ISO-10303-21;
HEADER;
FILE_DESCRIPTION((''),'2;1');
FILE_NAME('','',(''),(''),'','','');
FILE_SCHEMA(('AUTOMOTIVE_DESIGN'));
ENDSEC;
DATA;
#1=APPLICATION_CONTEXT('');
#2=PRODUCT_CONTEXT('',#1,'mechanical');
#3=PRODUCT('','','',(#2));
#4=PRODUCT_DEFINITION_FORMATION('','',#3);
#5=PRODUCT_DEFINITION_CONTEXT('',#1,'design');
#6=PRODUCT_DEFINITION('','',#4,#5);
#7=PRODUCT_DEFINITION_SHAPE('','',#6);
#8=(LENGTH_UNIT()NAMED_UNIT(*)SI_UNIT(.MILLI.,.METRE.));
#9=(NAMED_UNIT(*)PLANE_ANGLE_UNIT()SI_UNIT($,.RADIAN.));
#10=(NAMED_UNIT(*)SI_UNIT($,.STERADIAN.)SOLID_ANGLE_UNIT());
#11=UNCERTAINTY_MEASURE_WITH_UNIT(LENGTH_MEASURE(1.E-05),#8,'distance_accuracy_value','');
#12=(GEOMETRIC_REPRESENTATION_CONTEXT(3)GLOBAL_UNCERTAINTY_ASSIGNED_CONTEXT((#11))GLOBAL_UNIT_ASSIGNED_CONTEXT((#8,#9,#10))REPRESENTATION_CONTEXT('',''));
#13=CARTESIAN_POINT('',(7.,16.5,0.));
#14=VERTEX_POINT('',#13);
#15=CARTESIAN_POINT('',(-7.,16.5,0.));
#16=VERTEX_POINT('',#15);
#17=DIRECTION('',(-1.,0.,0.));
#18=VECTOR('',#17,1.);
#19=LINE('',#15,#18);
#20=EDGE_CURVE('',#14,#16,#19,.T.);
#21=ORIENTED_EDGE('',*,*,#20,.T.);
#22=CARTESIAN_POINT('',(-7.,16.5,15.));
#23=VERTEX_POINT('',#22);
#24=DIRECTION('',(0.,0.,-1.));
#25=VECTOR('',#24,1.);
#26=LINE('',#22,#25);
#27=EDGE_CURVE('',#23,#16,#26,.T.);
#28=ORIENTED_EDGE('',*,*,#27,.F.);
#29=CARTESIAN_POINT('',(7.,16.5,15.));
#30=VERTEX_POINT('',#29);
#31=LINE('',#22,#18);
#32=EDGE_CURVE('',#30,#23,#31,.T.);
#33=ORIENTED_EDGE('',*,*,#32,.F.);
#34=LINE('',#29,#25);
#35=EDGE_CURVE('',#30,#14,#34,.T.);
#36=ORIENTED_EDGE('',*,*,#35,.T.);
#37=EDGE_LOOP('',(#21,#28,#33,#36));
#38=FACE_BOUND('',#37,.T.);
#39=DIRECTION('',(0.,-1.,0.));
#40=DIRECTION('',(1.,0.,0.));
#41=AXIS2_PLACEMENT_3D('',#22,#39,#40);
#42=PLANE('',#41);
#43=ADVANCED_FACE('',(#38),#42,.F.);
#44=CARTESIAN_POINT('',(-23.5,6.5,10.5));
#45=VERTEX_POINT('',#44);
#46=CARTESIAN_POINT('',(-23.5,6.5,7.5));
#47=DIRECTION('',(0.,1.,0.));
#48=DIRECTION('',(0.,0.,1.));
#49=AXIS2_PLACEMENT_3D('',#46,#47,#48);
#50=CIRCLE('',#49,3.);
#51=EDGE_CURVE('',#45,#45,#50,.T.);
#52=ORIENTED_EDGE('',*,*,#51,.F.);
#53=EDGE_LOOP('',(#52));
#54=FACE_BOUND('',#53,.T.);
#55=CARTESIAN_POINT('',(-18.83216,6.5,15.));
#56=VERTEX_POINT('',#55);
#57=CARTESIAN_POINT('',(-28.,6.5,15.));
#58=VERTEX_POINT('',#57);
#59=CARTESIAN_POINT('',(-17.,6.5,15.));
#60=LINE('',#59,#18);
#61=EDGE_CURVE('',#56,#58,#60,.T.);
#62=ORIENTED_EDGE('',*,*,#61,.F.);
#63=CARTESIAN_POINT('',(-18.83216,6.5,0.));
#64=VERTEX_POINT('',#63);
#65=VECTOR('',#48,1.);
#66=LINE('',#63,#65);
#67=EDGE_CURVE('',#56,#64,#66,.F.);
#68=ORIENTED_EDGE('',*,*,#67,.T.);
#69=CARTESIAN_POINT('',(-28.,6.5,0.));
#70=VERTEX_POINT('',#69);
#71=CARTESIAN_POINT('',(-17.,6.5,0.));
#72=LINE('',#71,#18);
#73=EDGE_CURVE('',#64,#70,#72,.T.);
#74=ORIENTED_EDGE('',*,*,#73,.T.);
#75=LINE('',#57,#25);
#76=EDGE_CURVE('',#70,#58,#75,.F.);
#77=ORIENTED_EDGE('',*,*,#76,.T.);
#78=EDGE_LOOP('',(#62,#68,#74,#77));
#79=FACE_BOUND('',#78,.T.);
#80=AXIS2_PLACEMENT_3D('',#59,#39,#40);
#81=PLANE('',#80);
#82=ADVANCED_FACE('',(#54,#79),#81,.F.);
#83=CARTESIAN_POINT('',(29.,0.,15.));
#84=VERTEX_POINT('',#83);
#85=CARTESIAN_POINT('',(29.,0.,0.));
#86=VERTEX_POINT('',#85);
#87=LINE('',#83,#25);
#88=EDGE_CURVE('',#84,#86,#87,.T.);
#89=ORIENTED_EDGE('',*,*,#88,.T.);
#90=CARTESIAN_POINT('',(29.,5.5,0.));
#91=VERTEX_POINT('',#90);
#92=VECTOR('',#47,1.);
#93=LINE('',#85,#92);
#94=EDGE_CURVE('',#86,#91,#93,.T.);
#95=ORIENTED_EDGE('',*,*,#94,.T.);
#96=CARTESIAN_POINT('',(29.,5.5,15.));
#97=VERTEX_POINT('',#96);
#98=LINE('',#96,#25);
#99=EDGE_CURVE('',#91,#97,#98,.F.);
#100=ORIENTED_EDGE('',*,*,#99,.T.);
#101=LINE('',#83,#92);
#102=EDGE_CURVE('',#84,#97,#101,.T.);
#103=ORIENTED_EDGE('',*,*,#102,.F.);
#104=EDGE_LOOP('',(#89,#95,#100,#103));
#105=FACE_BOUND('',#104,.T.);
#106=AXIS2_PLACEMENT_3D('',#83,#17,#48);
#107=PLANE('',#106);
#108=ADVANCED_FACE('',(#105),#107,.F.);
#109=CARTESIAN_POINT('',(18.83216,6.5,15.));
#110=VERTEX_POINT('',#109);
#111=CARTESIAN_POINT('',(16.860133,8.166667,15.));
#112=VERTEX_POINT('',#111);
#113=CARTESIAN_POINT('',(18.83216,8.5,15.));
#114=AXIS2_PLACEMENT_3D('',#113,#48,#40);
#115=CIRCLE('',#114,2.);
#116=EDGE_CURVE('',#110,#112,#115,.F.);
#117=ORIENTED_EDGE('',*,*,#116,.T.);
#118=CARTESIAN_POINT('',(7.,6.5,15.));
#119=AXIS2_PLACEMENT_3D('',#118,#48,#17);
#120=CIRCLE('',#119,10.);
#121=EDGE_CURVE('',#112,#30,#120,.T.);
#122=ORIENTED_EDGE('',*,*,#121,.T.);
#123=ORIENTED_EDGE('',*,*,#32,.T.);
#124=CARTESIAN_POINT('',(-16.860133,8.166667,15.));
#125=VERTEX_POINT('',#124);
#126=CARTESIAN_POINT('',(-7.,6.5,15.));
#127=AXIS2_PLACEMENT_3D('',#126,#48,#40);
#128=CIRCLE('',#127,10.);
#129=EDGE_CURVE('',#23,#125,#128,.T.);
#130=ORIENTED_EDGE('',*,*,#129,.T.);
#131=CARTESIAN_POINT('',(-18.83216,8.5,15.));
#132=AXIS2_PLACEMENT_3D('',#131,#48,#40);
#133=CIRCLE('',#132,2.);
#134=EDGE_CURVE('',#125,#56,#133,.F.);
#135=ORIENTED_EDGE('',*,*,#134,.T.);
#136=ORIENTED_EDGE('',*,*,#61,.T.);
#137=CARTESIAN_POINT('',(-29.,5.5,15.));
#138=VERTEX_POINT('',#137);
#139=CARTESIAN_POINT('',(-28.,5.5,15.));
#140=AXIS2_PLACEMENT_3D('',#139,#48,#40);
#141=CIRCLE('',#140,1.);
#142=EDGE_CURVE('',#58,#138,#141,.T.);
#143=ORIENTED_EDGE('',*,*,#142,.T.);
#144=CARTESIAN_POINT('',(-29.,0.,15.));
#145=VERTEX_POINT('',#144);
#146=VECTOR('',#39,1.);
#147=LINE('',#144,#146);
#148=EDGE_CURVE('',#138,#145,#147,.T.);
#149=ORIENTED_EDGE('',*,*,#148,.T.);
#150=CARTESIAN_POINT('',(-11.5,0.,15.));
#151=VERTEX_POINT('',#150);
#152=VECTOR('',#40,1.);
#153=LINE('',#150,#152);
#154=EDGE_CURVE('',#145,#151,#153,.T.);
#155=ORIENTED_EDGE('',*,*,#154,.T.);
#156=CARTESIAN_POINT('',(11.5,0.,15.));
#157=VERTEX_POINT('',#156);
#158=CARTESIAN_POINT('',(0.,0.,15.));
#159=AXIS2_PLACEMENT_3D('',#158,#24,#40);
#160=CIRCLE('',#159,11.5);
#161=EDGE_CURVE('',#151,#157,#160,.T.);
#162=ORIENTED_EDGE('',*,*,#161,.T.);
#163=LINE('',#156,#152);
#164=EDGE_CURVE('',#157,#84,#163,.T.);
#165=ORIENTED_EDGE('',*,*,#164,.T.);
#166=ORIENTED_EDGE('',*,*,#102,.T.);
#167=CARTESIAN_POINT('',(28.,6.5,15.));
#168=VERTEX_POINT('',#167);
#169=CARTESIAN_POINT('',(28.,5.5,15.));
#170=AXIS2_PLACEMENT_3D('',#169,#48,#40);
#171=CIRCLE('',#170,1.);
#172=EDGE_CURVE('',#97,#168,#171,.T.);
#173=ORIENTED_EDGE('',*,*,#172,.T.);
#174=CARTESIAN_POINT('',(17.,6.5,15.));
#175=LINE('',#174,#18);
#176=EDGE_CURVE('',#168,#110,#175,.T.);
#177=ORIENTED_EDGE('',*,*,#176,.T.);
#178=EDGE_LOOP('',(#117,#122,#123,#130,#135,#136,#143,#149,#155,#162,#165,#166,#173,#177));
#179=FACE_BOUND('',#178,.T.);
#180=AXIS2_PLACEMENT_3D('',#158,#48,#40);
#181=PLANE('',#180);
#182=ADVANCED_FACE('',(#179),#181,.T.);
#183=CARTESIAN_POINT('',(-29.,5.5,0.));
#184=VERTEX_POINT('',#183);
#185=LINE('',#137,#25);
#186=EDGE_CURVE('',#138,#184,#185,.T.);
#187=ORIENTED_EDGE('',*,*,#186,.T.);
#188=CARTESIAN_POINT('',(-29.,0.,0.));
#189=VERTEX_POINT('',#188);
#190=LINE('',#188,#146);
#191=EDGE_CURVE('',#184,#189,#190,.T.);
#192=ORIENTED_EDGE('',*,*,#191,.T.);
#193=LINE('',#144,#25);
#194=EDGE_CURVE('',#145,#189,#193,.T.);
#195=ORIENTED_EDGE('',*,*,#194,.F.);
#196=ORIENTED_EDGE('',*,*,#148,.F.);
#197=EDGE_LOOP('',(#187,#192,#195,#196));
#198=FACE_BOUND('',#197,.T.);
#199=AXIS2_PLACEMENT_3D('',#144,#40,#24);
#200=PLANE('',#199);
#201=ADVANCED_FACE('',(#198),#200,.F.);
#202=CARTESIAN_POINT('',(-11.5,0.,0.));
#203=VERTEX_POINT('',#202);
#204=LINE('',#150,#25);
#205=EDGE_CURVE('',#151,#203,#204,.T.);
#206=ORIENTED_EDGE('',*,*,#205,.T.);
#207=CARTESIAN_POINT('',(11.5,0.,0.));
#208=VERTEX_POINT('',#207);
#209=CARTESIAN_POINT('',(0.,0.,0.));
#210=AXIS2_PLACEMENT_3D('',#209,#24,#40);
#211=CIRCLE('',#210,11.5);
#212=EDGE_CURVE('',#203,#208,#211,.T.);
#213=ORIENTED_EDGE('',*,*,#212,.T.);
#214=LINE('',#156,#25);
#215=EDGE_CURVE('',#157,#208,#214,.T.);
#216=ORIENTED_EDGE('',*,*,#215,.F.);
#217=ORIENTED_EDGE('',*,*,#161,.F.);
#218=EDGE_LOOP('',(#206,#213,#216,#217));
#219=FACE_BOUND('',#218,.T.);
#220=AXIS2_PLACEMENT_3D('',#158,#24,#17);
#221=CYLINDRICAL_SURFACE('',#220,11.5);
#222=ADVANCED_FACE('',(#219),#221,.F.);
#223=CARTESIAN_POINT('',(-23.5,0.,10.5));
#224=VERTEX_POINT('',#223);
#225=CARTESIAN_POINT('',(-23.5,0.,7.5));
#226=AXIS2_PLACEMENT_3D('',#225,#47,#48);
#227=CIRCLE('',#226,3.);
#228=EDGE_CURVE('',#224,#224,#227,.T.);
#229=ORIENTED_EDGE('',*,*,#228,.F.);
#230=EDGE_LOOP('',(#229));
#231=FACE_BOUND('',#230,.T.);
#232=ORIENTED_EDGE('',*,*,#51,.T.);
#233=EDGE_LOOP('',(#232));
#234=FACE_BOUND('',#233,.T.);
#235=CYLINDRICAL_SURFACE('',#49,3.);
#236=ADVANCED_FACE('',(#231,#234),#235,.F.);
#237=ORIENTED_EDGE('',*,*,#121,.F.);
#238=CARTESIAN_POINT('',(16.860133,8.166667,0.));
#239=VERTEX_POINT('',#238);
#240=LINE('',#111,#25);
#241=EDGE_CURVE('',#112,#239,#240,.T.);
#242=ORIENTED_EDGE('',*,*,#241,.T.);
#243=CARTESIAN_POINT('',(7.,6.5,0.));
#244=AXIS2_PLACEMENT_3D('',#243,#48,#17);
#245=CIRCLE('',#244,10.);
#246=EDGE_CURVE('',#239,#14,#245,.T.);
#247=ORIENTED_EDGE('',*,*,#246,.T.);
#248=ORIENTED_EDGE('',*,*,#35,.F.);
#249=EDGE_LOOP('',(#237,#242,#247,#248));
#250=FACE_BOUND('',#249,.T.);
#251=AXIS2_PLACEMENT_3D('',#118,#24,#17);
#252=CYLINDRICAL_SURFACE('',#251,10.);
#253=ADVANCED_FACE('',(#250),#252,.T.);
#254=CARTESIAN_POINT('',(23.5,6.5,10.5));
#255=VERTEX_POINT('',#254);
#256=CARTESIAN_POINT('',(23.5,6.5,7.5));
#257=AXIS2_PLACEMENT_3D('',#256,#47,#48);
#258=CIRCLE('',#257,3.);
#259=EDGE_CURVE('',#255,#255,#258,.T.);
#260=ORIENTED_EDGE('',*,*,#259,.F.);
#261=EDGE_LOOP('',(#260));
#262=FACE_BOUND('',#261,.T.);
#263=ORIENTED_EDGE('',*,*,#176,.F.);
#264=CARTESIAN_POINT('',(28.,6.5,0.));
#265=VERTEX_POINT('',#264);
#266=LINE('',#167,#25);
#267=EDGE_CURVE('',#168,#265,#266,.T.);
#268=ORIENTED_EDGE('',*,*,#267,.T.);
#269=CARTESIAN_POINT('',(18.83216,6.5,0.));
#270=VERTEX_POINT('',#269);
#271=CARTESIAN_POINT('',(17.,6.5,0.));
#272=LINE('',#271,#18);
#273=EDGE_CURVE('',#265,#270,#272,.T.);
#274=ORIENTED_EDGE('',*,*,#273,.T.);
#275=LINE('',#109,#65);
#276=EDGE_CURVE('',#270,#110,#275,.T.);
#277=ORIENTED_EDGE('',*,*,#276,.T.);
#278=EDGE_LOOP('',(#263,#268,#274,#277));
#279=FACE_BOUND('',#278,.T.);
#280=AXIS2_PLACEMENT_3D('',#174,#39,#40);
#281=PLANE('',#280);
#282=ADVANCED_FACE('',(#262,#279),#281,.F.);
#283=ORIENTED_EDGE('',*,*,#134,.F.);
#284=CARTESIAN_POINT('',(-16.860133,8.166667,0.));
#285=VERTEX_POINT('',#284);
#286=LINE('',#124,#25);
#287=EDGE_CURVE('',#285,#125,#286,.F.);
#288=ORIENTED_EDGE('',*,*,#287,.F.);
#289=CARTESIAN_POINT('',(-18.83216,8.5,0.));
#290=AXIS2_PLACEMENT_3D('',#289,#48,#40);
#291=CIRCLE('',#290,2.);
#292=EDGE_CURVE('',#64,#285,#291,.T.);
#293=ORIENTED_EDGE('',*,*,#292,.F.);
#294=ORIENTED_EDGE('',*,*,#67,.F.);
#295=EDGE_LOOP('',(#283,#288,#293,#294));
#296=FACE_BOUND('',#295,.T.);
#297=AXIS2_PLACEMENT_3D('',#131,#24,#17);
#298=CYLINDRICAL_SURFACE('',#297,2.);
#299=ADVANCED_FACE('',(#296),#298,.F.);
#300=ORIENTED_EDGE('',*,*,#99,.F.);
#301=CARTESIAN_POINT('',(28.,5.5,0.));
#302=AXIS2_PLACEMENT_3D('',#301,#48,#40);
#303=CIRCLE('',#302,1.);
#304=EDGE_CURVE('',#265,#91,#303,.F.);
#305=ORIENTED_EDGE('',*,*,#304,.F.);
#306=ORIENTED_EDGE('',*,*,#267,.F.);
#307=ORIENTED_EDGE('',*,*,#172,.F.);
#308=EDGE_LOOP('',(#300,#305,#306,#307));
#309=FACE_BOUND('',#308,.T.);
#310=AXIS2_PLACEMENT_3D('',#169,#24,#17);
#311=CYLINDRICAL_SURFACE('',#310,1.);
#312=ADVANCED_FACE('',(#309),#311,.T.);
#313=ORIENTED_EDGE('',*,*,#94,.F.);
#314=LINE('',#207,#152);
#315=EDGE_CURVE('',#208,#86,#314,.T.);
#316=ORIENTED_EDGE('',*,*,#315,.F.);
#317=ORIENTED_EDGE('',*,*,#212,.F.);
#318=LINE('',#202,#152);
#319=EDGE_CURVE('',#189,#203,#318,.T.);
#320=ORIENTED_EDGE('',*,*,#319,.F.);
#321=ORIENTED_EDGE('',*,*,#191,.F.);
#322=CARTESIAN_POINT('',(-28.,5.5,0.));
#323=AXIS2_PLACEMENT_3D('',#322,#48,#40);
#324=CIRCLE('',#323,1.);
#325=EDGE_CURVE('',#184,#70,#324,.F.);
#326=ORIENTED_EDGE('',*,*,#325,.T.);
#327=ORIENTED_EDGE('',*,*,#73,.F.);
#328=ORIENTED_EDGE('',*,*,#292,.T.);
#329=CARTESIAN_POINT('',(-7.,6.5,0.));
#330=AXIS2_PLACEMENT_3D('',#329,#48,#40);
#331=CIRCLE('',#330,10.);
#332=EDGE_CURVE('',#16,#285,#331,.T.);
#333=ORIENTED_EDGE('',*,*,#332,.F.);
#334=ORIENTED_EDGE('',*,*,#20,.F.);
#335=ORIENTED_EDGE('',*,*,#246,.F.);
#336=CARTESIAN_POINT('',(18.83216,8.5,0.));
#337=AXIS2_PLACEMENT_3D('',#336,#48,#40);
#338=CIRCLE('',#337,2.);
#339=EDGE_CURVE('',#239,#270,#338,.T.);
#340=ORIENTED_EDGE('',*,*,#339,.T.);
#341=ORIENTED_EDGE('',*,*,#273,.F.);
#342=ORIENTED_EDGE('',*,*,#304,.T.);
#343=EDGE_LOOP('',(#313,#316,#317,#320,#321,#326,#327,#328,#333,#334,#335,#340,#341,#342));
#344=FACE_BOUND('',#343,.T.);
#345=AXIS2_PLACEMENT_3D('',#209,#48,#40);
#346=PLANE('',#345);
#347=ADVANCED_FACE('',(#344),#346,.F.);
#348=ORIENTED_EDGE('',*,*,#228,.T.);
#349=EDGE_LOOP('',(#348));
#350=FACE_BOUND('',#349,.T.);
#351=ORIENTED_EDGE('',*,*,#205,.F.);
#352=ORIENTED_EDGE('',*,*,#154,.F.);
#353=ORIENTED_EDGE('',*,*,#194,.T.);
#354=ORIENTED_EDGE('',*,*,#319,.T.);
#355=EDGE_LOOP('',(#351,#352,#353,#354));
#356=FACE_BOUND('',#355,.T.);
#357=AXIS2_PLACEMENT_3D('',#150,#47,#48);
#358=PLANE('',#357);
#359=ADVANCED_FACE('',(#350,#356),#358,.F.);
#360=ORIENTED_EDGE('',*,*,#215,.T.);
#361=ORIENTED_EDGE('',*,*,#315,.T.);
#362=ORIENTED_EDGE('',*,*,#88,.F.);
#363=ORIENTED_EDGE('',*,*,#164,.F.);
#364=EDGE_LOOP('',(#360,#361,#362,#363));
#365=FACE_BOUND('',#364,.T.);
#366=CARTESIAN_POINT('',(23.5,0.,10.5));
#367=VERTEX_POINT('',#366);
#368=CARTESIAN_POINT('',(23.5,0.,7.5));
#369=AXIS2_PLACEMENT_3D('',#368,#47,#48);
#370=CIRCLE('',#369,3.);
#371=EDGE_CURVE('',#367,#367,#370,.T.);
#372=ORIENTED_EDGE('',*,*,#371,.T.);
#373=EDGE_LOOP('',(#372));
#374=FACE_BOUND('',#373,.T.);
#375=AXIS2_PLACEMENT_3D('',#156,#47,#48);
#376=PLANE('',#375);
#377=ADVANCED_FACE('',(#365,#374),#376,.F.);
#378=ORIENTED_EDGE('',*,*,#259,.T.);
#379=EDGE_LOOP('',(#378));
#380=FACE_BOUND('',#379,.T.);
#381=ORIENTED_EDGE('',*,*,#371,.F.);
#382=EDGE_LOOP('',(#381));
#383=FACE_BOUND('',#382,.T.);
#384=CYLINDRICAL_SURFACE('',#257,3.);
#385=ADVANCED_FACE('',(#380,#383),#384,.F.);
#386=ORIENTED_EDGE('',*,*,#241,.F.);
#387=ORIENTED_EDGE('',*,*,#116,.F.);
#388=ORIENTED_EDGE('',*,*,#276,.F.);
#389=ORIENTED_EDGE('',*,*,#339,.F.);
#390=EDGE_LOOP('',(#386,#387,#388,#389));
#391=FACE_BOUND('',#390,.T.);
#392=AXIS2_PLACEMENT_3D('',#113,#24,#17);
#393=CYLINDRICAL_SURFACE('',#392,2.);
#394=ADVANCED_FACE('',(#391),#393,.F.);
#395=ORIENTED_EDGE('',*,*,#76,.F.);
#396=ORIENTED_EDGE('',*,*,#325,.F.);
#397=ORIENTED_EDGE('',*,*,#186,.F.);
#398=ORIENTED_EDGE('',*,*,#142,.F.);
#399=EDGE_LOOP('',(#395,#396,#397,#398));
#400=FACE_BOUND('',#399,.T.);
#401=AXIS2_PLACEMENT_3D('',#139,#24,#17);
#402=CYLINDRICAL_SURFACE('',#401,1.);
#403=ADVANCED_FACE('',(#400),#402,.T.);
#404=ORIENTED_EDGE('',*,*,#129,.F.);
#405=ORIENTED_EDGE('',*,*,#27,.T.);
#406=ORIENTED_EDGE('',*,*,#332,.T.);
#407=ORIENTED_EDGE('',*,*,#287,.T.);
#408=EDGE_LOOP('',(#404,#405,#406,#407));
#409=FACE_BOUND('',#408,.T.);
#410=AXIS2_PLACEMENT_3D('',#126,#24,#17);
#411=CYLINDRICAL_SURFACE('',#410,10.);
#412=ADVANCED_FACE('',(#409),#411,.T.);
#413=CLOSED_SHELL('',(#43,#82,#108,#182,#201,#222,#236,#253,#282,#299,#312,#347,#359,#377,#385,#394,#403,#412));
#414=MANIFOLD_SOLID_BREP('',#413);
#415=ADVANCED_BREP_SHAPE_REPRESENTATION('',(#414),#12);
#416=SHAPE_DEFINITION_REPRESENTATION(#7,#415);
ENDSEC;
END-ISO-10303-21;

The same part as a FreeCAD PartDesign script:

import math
import FreeCAD as App
import Part
import Sketcher
Q = App.Units.Quantity


def edges_at(feature, points):
    """Names of the edges that pass closest to the given points."""
    edges = feature.Shape.Edges
    near = lambda p: min(range(len(edges)), key=lambda i: edges[i].distToShape(Part.Vertex(*p))[0])
    return sorted({f"Edge{near(p) + 1}" for p in points})

doc = App.newDocument("Part")
params = doc.addObject("Spreadsheet::Sheet", "Params")
for row, (alias, value) in enumerate([
    ("sketch1_radius", "10 mm"),
    ("sketch1_radius2", "11.5 mm"),
    ("sketch1_width", "12 mm"),
    ("sketch1_width2", "14 mm"),
    ("sketch1_height", "6.5 mm"),
    ("pad1_length", "15 mm"),
    ("fillet_radius", "2 mm"),
    ("sketch2_diameter", "6 mm"),
    ("hole_diameter", "6 mm"),
    ("fillet2_radius", "1 mm"),
], start=1):
    params.set(f"A{row}", alias)
    params.set(f"B{row}", "=" + value)
    params.setAlias(f"B{row}", alias)

body = doc.addObject("PartDesign::Body", "Body")

# Sketch on XY plane
sketch1 = doc.addObject("Sketcher::SketchObject", "Sketch")
body.addObject(sketch1)
sketch1.AttachmentSupport = (doc.XY_Plane, [""])
sketch1.MapMode = "FlatFace"
sketch1.addGeometry(Part.LineSegment(App.Vector(-29, 6, 0), App.Vector(-29, 0, 0)), False)
sketch1.addGeometry(Part.LineSegment(App.Vector(-29, 0, 0), App.Vector(-12, 0, 0)), False)
sketch1.addGeometry(Part.ArcOfCircle(Part.Circle(App.Vector(0, 0, 0), App.Vector(0, 0, 1), 12), math.radians(0), math.radians(180)), False)
sketch1.addGeometry(Part.LineSegment(App.Vector(12, 0, 0), App.Vector(29, 0, 0)), False)
sketch1.addGeometry(Part.LineSegment(App.Vector(29, 0, 0), App.Vector(29, 6, 0)), False)
sketch1.addGeometry(Part.LineSegment(App.Vector(29, 6, 0), App.Vector(17, 6, 0)), False)
sketch1.addGeometry(Part.ArcOfCircle(Part.Circle(App.Vector(7, 6, 0), App.Vector(0, 0, 1), 10), math.radians(0), math.radians(90)), False)
sketch1.addGeometry(Part.LineSegment(App.Vector(7, 16, 0), App.Vector(-7, 16, 0)), False)
sketch1.addGeometry(Part.ArcOfCircle(Part.Circle(App.Vector(-7, 6, 0), App.Vector(0, 0, 1), 10), math.radians(90), math.radians(180)), False)
sketch1.addGeometry(Part.LineSegment(App.Vector(-17, 6, 0), App.Vector(-29, 6, 0)), False)
sketch1.addConstraint(Sketcher.Constraint("Coincident", 0, 2, 1, 1))
sketch1.addConstraint(Sketcher.Constraint("Coincident", 1, 2, 2, 2))
sketch1.addConstraint(Sketcher.Constraint("Coincident", 2, 1, 3, 1))
sketch1.addConstraint(Sketcher.Constraint("Coincident", 3, 2, 4, 1))
sketch1.addConstraint(Sketcher.Constraint("Coincident", 4, 2, 5, 1))
sketch1.addConstraint(Sketcher.Constraint("Coincident", 5, 2, 6, 1))
sketch1.addConstraint(Sketcher.Constraint("Tangent", 6, 2, 7, 1))
sketch1.addConstraint(Sketcher.Constraint("Tangent", 7, 2, 8, 1))
sketch1.addConstraint(Sketcher.Constraint("Coincident", 8, 2, 9, 1))
sketch1.addConstraint(Sketcher.Constraint("Coincident", 9, 2, 0, 1))
sketch1.addConstraint(Sketcher.Constraint("Vertical", 0))
sketch1.addConstraint(Sketcher.Constraint("Horizontal", 1))
sketch1.addConstraint(Sketcher.Constraint("Horizontal", 3))
sketch1.addConstraint(Sketcher.Constraint("Vertical", 4))
sketch1.addConstraint(Sketcher.Constraint("Horizontal", 5))
sketch1.addConstraint(Sketcher.Constraint("Horizontal", 7))
sketch1.addConstraint(Sketcher.Constraint("Horizontal", 9))
sketch1.addConstraint(Sketcher.Constraint("Coincident", 2, 3, -1, 1))
sketch1.addConstraint(Sketcher.Constraint("Equal", 6, 8))
sketch1.addConstraint(Sketcher.Constraint("Symmetric", 0, 2, 3, 2, -1, 1))
sketch1.addConstraint(Sketcher.Constraint("Symmetric", 5, 2, 8, 2, -2))
sketch1.addConstraint(Sketcher.Constraint("PointOnObject", 0, 2, -1))
sketch1.addConstraint(Sketcher.Constraint("Horizontal", 8, 3, 4, 2))
sketch1.addConstraint(Sketcher.Constraint("Radius", 6, Q("10 mm")))
sketch1.addConstraint(Sketcher.Constraint("Radius", 2, Q("11.5 mm")))
sketch1.addConstraint(Sketcher.Constraint("DistanceX", 5, 2, 5, 1, Q("12 mm")))
sketch1.addConstraint(Sketcher.Constraint("DistanceX", 7, 2, 7, 1, Q("14 mm")))
sketch1.addConstraint(Sketcher.Constraint("DistanceY", 0, 2, 0, 1, Q("6.5 mm")))
sketch1.setExpression("Constraints[23]", "Params.sketch1_radius")
sketch1.setExpression("Constraints[24]", "Params.sketch1_radius2")
sketch1.setExpression("Constraints[25]", "Params.sketch1_width")
sketch1.setExpression("Constraints[26]", "Params.sketch1_width2")
sketch1.setExpression("Constraints[27]", "Params.sketch1_height")
pad1 = doc.addObject("PartDesign::Pad", "Pad")
body.addObject(pad1)
pad1.Profile = sketch1
pad1.setExpression("Length", "Params.pad1_length")
doc.recompute()

fillet = doc.addObject("PartDesign::Fillet", "Fillet")
body.addObject(fillet)
fillet.Base = (pad1, edges_at(pad1, [(-17, 6.5, 7.5), (17, 6.5, 7.5)]))
fillet.setExpression("Radius", "Params.fillet_radius")

# Sketch on XZ plane
sketch2 = doc.addObject("Sketcher::SketchObject", "Sketch001")
body.addObject(sketch2)
sketch2.AttachmentSupport = (doc.XZ_Plane, [""])
sketch2.MapMode = "FlatFace"
sketch2.AttachmentOffset = App.Placement(App.Vector(0, 0, -6.5), App.Rotation())
sketch2.addGeometry(Part.Circle(App.Vector(-23.5, 7.5, 0), App.Vector(0, 0, 1), 3), False)
sketch2.addConstraint(Sketcher.Constraint("Diameter", 0, Q("6 mm")))
sketch2.addConstraint(Sketcher.Constraint("DistanceX", 0, 3, -1, 1, Q("23.5 mm")))
sketch2.addConstraint(Sketcher.Constraint("DistanceY", -1, 1, 0, 3, Q("7.5 mm")))
sketch2.setExpression("Constraints[0]", "Params.sketch2_diameter")
doc.recompute()
hole = doc.addObject("PartDesign::Hole", "Hole")
body.addObject(hole)
hole.Profile = sketch2
hole.ThreadType = "None"
hole.setExpression("Diameter", "Params.hole_diameter")
hole.DepthType = "ThroughAll"
hole.Reversed = True
doc.recompute()

mirrored = doc.addObject("PartDesign::Mirrored", "Mirrored")
body.addObject(mirrored)
mirrored.Originals = [hole]
mirrored.MirrorPlane = (doc.YZ_Plane, [""])
body.Tip = mirrored
doc.recompute()

fillet2 = doc.addObject("PartDesign::Fillet", "Fillet001")
body.addObject(fillet2)
fillet2.Base = (mirrored, edges_at(mirrored, [(29, 6.5, 7.5), (-29, 6.5, 7.5)]))
fillet2.setExpression("Radius", "Params.fillet2_radius")

doc.recompute()
